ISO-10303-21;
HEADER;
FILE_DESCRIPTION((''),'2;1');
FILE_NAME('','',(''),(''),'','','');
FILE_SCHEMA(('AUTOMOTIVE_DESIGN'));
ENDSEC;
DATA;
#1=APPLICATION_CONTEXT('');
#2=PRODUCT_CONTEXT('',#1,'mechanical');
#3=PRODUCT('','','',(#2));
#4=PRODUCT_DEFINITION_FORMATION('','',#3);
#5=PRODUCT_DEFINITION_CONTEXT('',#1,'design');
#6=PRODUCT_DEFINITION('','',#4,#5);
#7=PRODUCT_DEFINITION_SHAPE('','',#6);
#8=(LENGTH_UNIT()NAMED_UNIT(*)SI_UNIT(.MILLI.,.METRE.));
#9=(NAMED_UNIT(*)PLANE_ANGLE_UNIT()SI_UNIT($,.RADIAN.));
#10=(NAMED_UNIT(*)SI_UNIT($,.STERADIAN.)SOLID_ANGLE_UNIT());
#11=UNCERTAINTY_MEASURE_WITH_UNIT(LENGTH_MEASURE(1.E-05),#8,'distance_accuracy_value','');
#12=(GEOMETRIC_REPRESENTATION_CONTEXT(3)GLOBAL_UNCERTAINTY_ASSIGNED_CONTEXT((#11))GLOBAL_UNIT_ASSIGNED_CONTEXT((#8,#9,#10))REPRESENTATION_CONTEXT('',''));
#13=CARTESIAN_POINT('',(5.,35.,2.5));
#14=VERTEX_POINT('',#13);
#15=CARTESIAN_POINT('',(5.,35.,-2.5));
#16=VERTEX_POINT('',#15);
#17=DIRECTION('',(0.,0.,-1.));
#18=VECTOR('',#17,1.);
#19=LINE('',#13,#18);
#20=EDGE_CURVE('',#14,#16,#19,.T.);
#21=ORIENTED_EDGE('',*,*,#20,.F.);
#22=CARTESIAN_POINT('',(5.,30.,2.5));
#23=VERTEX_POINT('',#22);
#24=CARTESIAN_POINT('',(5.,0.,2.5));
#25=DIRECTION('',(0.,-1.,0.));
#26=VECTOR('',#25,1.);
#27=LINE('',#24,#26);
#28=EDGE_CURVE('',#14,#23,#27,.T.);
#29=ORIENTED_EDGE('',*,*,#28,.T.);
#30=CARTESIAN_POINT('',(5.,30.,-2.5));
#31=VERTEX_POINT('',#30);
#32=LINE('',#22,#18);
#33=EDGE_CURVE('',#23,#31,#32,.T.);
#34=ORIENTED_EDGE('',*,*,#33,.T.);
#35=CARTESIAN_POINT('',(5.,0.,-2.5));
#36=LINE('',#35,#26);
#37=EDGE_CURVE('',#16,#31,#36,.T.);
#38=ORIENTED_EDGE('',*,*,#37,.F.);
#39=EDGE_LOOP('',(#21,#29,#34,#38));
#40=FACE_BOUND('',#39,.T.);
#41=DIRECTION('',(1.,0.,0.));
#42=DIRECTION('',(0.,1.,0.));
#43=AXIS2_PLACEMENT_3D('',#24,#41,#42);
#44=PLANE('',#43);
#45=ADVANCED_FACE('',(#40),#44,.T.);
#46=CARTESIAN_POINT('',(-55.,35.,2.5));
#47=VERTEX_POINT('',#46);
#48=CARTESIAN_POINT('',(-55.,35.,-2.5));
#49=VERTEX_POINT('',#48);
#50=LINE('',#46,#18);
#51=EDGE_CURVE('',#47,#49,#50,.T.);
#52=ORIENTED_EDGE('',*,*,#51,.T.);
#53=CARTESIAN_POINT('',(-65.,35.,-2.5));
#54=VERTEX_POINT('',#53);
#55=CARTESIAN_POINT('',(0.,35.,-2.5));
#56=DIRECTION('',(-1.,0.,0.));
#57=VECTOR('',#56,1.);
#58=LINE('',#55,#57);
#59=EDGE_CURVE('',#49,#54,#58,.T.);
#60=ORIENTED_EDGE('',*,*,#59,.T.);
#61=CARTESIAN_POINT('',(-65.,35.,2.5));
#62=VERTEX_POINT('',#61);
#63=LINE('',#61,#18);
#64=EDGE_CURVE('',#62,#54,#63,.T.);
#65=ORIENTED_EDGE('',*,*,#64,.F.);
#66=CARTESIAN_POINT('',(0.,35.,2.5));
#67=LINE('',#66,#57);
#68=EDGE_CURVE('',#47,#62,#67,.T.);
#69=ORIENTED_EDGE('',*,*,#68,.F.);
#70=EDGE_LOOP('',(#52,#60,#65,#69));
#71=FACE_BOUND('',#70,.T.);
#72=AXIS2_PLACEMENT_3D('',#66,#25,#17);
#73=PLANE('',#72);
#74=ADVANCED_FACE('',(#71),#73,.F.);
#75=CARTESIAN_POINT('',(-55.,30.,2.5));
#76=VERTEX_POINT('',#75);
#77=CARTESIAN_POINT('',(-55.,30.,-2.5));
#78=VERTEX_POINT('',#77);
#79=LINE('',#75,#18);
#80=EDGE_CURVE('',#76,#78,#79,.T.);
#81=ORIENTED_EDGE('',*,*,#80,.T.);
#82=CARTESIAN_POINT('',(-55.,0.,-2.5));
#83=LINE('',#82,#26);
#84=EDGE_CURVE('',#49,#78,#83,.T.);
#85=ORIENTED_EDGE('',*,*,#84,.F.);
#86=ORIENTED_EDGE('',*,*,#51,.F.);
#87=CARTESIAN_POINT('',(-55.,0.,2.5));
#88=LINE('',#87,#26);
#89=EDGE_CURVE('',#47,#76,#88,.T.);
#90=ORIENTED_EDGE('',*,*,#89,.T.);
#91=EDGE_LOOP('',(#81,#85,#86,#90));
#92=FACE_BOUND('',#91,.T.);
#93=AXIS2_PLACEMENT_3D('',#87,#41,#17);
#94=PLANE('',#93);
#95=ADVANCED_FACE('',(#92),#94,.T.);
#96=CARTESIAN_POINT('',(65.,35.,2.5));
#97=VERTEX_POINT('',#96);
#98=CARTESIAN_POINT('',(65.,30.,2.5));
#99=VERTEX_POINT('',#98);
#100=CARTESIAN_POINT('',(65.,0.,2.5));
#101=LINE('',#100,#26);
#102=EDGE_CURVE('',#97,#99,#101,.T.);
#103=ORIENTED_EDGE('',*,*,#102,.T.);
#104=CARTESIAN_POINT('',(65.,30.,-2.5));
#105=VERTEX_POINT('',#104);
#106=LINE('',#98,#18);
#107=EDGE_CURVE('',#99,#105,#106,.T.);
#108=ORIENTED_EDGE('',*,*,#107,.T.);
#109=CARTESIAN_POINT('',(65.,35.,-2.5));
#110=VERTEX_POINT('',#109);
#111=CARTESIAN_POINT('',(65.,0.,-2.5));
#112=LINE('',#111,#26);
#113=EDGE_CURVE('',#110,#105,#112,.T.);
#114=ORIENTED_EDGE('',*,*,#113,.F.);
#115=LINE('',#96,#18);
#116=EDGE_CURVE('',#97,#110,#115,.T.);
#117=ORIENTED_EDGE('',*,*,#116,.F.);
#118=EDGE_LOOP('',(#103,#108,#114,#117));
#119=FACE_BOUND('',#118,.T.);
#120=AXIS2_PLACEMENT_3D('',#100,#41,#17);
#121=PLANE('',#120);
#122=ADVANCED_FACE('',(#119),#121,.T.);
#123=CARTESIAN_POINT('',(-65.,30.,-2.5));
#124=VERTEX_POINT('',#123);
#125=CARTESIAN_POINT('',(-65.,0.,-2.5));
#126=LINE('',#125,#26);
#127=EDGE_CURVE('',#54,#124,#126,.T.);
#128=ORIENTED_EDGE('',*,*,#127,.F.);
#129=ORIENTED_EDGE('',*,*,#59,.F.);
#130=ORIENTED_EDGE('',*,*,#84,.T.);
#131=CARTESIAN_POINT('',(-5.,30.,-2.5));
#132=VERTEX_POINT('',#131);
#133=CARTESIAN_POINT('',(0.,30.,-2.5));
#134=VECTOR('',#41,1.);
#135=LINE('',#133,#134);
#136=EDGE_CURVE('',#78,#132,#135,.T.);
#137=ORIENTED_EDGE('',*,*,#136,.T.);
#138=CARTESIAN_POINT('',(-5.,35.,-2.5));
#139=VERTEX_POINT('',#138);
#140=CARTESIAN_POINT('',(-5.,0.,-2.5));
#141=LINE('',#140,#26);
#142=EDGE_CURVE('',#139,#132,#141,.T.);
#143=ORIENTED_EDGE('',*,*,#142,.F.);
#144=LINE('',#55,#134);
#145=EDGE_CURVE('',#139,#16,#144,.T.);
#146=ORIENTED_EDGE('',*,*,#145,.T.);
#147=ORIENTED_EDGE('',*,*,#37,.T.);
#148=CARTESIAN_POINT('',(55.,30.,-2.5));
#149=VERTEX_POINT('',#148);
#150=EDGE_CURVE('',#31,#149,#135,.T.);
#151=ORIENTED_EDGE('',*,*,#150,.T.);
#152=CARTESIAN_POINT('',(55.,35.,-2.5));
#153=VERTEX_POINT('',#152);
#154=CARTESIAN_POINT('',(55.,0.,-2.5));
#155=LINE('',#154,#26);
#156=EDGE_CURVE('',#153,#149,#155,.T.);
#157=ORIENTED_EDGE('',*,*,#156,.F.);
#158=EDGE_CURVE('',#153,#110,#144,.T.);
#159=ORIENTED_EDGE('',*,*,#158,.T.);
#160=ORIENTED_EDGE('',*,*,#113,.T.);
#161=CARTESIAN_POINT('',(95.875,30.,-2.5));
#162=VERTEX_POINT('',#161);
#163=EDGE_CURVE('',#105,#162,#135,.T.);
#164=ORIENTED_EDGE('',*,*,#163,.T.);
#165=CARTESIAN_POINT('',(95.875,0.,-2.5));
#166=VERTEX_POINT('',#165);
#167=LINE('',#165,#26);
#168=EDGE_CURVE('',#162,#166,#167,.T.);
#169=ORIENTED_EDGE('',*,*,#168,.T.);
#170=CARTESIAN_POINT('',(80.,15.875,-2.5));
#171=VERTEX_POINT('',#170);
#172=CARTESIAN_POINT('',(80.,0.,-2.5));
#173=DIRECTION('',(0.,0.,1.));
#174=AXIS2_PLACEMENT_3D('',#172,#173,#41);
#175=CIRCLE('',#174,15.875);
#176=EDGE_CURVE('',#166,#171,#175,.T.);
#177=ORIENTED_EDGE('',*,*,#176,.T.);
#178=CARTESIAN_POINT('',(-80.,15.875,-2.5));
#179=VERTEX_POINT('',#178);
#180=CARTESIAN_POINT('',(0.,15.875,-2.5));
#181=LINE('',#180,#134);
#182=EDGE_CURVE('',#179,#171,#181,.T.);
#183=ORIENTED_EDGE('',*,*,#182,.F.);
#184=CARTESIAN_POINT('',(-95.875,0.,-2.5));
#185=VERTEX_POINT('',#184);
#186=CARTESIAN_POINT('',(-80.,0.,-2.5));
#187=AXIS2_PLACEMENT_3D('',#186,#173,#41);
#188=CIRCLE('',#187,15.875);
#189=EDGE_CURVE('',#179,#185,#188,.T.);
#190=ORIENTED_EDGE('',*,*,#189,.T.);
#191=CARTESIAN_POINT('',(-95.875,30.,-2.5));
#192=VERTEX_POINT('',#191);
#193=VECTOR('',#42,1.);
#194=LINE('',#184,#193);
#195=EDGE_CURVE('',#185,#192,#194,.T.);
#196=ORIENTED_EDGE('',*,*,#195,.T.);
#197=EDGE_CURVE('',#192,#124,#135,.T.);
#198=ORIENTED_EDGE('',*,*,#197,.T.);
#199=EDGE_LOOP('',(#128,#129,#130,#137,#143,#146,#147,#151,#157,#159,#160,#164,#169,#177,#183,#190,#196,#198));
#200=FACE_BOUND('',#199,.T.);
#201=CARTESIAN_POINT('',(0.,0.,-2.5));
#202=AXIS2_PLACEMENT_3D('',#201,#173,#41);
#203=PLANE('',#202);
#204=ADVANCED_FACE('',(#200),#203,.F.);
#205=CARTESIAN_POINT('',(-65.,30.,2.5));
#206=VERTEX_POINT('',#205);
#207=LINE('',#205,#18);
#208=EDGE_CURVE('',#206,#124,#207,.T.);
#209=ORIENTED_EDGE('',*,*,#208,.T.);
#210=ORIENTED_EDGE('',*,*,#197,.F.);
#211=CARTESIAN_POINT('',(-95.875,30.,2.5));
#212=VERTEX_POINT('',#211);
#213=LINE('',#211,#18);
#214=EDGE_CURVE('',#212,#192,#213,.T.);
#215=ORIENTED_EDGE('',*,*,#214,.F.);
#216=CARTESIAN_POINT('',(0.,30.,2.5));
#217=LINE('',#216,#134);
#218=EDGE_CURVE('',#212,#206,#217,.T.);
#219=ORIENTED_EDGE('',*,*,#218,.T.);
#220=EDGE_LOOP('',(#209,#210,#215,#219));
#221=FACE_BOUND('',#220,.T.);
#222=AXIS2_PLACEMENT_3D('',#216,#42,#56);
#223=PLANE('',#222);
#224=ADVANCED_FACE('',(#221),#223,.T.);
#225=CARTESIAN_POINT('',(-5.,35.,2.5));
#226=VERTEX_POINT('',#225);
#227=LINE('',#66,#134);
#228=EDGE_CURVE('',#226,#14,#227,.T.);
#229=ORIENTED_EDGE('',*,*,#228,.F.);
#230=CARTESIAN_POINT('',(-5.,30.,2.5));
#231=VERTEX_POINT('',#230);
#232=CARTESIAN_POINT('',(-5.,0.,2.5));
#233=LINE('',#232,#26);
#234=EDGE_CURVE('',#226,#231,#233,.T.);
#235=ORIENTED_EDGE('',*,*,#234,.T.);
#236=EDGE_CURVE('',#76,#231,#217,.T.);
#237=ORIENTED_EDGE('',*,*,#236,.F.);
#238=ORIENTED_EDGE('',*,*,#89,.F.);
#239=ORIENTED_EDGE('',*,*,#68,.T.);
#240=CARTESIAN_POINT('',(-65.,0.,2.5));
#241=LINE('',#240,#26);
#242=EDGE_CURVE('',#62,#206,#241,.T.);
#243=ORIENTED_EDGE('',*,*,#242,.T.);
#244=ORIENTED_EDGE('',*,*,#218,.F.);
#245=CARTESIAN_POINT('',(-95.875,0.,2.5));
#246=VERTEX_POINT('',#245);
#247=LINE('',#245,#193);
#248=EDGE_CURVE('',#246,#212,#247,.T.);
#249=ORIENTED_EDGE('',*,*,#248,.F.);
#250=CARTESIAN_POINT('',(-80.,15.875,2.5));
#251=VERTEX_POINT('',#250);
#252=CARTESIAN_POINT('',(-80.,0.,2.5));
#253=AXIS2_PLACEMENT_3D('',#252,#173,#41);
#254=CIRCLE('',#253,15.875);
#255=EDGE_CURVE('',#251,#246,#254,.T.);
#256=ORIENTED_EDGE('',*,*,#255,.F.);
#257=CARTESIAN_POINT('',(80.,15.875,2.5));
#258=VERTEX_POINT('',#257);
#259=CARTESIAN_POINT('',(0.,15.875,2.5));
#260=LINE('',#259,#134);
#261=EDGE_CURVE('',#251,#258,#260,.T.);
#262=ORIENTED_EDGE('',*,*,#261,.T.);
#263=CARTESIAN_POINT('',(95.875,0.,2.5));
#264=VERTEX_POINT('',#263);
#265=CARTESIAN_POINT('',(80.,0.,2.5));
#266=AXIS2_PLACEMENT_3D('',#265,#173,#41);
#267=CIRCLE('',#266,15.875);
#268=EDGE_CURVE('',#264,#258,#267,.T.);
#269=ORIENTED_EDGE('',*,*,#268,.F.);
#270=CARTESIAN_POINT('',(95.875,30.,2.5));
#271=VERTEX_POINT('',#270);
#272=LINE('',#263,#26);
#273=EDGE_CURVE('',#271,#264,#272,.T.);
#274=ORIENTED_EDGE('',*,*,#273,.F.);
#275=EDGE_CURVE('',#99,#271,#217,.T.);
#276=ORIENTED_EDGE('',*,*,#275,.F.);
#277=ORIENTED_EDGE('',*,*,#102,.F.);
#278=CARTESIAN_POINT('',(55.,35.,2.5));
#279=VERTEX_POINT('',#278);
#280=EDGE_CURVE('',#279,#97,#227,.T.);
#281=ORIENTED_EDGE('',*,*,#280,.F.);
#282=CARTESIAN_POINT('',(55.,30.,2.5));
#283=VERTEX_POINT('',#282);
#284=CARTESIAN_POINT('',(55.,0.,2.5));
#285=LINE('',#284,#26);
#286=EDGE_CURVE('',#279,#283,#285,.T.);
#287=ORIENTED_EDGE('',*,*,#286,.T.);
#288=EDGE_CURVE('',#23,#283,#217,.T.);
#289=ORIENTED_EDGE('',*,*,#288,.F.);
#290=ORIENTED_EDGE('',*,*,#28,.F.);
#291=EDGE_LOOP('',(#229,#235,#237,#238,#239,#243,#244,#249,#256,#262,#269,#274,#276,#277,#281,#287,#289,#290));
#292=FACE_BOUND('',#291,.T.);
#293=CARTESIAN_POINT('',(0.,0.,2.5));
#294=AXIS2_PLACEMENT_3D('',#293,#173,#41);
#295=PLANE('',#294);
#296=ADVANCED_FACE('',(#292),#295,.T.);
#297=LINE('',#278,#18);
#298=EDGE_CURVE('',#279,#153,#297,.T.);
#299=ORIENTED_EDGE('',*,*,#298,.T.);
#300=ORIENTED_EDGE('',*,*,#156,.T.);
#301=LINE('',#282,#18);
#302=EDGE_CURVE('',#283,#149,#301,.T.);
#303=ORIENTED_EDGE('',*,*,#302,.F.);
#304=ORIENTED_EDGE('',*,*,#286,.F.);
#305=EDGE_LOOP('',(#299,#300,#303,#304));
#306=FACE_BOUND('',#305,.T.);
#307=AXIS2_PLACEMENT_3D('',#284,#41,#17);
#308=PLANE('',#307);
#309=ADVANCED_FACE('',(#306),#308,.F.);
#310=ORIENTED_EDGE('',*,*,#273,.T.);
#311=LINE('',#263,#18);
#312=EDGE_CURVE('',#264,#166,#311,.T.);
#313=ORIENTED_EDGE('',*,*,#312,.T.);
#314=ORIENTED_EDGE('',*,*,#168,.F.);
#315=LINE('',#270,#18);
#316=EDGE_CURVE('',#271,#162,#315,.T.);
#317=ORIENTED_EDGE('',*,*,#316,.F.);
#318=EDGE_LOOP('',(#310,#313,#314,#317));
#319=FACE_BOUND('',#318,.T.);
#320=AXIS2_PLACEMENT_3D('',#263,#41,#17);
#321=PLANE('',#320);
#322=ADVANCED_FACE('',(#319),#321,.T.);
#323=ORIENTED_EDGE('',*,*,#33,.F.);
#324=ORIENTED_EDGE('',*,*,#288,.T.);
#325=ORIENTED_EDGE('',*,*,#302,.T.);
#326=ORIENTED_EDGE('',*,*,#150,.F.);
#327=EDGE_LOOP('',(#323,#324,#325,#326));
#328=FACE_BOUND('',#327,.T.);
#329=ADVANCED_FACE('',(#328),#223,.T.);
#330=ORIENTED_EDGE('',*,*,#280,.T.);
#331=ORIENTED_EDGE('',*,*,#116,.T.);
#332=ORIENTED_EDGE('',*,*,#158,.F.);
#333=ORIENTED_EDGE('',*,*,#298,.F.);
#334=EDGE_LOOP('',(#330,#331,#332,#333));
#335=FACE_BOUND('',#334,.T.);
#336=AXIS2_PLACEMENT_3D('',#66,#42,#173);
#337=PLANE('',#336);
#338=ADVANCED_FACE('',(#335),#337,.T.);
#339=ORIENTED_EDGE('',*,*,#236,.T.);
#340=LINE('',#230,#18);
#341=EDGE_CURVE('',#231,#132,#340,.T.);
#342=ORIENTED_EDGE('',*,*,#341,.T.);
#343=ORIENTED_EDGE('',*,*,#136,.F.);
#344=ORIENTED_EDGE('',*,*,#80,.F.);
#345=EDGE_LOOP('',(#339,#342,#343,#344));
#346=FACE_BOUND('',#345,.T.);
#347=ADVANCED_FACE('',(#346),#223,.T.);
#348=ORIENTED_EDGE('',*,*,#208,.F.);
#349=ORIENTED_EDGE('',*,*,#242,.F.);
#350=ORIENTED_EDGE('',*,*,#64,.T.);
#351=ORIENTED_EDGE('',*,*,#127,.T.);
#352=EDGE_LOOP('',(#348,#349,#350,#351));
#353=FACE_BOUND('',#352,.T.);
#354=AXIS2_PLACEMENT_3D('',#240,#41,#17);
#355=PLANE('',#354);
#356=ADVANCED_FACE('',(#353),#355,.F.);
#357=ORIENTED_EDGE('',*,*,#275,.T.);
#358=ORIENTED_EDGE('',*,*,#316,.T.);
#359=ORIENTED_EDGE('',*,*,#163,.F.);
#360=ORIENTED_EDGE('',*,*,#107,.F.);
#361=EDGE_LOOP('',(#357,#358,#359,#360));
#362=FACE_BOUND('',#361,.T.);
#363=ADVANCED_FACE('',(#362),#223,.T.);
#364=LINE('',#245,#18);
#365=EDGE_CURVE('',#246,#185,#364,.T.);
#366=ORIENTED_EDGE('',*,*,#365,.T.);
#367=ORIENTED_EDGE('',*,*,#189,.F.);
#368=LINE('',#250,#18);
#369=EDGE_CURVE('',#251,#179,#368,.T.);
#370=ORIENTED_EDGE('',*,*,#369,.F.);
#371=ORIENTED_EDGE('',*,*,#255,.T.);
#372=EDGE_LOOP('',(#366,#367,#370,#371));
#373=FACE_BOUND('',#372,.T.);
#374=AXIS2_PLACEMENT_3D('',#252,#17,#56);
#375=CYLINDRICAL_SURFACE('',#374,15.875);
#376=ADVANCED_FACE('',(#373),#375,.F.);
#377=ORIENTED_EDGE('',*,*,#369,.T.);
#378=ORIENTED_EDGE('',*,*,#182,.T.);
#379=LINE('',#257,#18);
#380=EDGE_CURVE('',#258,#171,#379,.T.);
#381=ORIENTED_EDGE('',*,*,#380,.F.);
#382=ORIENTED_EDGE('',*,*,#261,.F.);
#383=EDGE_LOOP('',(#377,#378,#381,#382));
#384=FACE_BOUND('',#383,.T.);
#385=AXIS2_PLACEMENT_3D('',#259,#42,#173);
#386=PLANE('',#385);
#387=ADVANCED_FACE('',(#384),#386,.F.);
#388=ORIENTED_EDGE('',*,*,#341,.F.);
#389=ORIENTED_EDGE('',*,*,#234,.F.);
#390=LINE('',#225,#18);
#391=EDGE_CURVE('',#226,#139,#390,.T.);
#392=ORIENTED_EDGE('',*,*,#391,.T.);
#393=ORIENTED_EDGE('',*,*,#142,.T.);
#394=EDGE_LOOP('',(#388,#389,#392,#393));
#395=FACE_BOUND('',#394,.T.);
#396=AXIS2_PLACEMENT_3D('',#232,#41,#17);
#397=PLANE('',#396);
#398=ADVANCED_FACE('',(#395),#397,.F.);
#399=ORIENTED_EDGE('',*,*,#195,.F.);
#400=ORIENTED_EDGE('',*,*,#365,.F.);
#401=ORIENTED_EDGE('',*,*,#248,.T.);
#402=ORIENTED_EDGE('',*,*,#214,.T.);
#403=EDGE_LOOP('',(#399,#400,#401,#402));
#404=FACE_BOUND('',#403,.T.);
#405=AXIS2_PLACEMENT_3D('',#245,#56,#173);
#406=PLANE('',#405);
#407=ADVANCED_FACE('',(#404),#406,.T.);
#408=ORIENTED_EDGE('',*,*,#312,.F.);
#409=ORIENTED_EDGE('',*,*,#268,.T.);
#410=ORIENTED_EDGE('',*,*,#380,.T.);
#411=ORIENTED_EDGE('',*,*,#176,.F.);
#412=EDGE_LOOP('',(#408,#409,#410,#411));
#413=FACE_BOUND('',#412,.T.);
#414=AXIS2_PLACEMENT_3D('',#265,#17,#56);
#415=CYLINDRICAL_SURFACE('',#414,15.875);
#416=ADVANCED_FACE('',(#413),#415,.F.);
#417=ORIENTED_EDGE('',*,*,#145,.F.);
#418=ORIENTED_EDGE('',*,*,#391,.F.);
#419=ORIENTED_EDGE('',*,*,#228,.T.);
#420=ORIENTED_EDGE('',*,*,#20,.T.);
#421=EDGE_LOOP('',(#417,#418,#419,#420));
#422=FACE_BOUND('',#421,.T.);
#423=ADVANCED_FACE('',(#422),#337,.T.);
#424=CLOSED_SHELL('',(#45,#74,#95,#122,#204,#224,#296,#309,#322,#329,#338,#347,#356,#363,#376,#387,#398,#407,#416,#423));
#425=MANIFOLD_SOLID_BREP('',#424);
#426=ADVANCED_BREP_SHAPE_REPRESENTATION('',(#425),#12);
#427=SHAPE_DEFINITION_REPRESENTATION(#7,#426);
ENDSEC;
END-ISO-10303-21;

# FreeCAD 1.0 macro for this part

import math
import FreeCAD as App
import Part
import Sketcher

doc = App.newDocument("Part")
body = doc.addObject("PartDesign::Body", "Body")

sketch1 = body.newObject("Sketcher::SketchObject", "Sketch")
sketch1.AttachmentSupport = (doc.getObject("XY_Plane"), [""])
sketch1.MapMode = "FlatFace"
sketch1.addGeometry([
    Part.ArcOfCircle(Part.Circle(App.Vector(80, 0, 0), App.Vector(0, 0, 1), 15.875), math.radians(0), math.radians(90)),
    Part.LineSegment(App.Vector(95.875, 0, 0), App.Vector(95.875, 30, 0)),
    Part.LineSegment(App.Vector(95.875, 30, 0), App.Vector(65, 30, 0)),
    Part.LineSegment(App.Vector(65, 30, 0), App.Vector(65, 35, 0)),
    Part.LineSegment(App.Vector(65, 35, 0), App.Vector(55, 35, 0)),
    Part.LineSegment(App.Vector(55, 35, 0), App.Vector(55, 30, 0)),
    Part.LineSegment(App.Vector(55, 30, 0), App.Vector(5, 30, 0)),
    Part.LineSegment(App.Vector(5, 30, 0), App.Vector(5, 35, 0)),
    Part.LineSegment(App.Vector(5, 35, 0), App.Vector(-5, 35, 0)),
    Part.LineSegment(App.Vector(-5, 35, 0), App.Vector(-5, 30, 0)),
    Part.LineSegment(App.Vector(-5, 30, 0), App.Vector(-55, 30, 0)),
    Part.LineSegment(App.Vector(-55, 30, 0), App.Vector(-55, 35, 0)),
    Part.LineSegment(App.Vector(-55, 35, 0), App.Vector(-65, 35, 0)),
    Part.LineSegment(App.Vector(-65, 35, 0), App.Vector(-65, 30, 0)),
    Part.LineSegment(App.Vector(-65, 30, 0), App.Vector(-95.875, 30, 0)),
    Part.LineSegment(App.Vector(-95.875, 30, 0), App.Vector(-95.875, 0, 0)),
    Part.ArcOfCircle(Part.Circle(App.Vector(-80, 0, 0), App.Vector(0, 0, 1), 15.875), math.radians(90), math.radians(180)),
    Part.LineSegment(App.Vector(-80, 15.875, 0), App.Vector(80, 15.875, 0)),
], False)
sketch1.addConstraint([
    Sketcher.Constraint("Tangent", 0, 1, 1, 1),
    Sketcher.Constraint("Coincident", 1, 2, 2, 1),
    Sketcher.Constraint("Coincident", 2, 2, 3, 1),
    Sketcher.Constraint("Coincident", 3, 2, 4, 1),
    Sketcher.Constraint("Coincident", 4, 2, 5, 1),
    Sketcher.Constraint("Coincident", 5, 2, 6, 1),
    Sketcher.Constraint("Coincident", 6, 2, 7, 1),
    Sketcher.Constraint("Coincident", 7, 2, 8, 1),
    Sketcher.Constraint("Coincident", 8, 2, 9, 1),
    Sketcher.Constraint("Coincident", 9, 2, 10, 1),
    Sketcher.Constraint("Coincident", 10, 2, 11, 1),
    Sketcher.Constraint("Coincident", 11, 2, 12, 1),
    Sketcher.Constraint("Coincident", 12, 2, 13, 1),
    Sketcher.Constraint("Coincident", 13, 2, 14, 1),
    Sketcher.Constraint("Coincident", 14, 2, 15, 1),
    Sketcher.Constraint("Tangent", 15, 2, 16, 2),
    Sketcher.Constraint("Tangent", 16, 1, 17, 1),
    Sketcher.Constraint("Tangent", 17, 2, 0, 2),
    Sketcher.Constraint("Vertical", 1),
    Sketcher.Constraint("Horizontal", 2),
    Sketcher.Constraint("Vertical", 3),
    Sketcher.Constraint("Horizontal", 4),
    Sketcher.Constraint("Vertical", 5),
    Sketcher.Constraint("Horizontal", 6),
    Sketcher.Constraint("Vertical", 7),
    Sketcher.Constraint("Horizontal", 8),
    Sketcher.Constraint("Vertical", 9),
    Sketcher.Constraint("Horizontal", 10),
    Sketcher.Constraint("Vertical", 11),
    Sketcher.Constraint("Horizontal", 12),
    Sketcher.Constraint("Vertical", 13),
    Sketcher.Constraint("Horizontal", 14),
    Sketcher.Constraint("Vertical", 15),
    Sketcher.Constraint("Horizontal", 17),
    Sketcher.Constraint("Equal", 0, 16),
    Sketcher.Constraint("Symmetric", 0, 3, 16, 3, -1, 1),
    Sketcher.Constraint("Symmetric", 6, 2, 9, 2, -2),
    Sketcher.Constraint("Symmetric", 4, 2, 11, 2, -2),
    Sketcher.Constraint("Symmetric", 2, 2, 13, 2, -2),
    Sketcher.Constraint("Horizontal", 2, 2, 5, 2),
    Sketcher.Constraint("Horizontal", 4, 2, 7, 2),
    Sketcher.Constraint("Equal", 4, 8),
    Sketcher.Constraint("DistanceX", 4, 2, 4, 1, 10.0),
    Sketcher.Constraint("DistanceX", 6, 2, 6, 1, 50.0),
    Sketcher.Constraint("DistanceX", 17, 1, 17, 2, 160.0),
    Sketcher.Constraint("DistanceY", 1, 1, 1, 2, 30.0),
    Sketcher.Constraint("DistanceY", 3, 1, 3, 2, 5.0),
    Sketcher.Constraint("Radius", 0, 15.875),
])
pad1 = body.newObject("PartDesign::Pad", "Pad")
pad1.Profile = sketch1
pad1.Length = 5
pad1.Midplane = True

doc.recompute()
